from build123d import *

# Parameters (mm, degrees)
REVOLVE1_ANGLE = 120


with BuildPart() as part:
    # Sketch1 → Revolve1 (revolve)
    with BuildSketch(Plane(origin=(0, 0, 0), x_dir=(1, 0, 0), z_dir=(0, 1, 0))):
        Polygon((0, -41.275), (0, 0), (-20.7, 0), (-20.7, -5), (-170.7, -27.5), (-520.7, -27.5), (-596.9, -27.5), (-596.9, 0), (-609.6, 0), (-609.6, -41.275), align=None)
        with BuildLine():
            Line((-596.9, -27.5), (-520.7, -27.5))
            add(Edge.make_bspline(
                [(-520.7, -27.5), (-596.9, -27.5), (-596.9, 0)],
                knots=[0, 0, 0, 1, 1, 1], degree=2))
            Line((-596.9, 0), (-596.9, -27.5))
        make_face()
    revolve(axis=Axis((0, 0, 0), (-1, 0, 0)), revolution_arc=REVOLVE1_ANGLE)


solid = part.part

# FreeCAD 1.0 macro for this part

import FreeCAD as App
import Part
import Sketcher

V = App.Vector

doc = App.newDocument("Part")
body = doc.addObject("PartDesign::Body", "Body")

# Sketch on XZ plane
sketch1 = doc.addObject("Sketcher::SketchObject", "Sketch")
body.addObject(sketch1)
sketch1.AttachmentSupport = (doc.XZ_Plane, [""])
sketch1.MapMode = "FlatFace"
sketch1.addGeometry(Part.LineSegment(V(0, 41.275, 0), V(0, 0, 0)), False)
sketch1.addGeometry(Part.LineSegment(V(0, 0, 0), V(-20.7, 0, 0)), False)
sketch1.addGeometry(Part.LineSegment(V(-20.7, 0, 0), V(-20.7, 5, 0)), False)
sketch1.addGeometry(Part.LineSegment(V(-20.7, 5, 0), V(-170.7, 27.5, 0)), False)
sketch1.addGeometry(Part.LineSegment(V(-170.7, 27.5, 0), V(-520.7, 27.5, 0)), False)
sketch1.addGeometry(Part.BSplineCurve([V(-520.7, 27.5, 0), V(-596.9, 27.5, 0), V(-596.9, 0, 0)], [3, 3], [0, 1], False, 2, [1, 1, 1], False), False)
sketch1.addGeometry(Part.LineSegment(V(-596.9, 0, 0), V(-609.6, 0, 0)), False)
sketch1.addGeometry(Part.LineSegment(V(-609.6, 0, 0), V(-609.6, 41.275, 0)), False)
sketch1.addGeometry(Part.LineSegment(V(-609.6, 41.275, 0), V(0, 41.275, 0)), False)
sketch1.addConstraint(Sketcher.Constraint("Block", 5))
sketch1.addConstraint(Sketcher.Constraint("Coincident", 0, 2, 1, 1))
sketch1.addConstraint(Sketcher.Constraint("Coincident", 1, 2, 2, 1))
sketch1.addConstraint(Sketcher.Constraint("Coincident", 2, 2, 3, 1))
sketch1.addConstraint(Sketcher.Constraint("Coincident", 3, 2, 4, 1))
sketch1.addConstraint(Sketcher.Constraint("Coincident", 4, 2, 5, 1))
sketch1.addConstraint(Sketcher.Constraint("Coincident", 5, 2, 6, 1))
sketch1.addConstraint(Sketcher.Constraint("Coincident", 6, 2, 7, 1))
sketch1.addConstraint(Sketcher.Constraint("Coincident", 7, 2, 8, 1))
sketch1.addConstraint(Sketcher.Constraint("Coincident", 8, 2, 0, 1))
sketch1.addConstraint(Sketcher.Constraint("Vertical", 0))
sketch1.addConstraint(Sketcher.Constraint("Horizontal", 1))
sketch1.addConstraint(Sketcher.Constraint("Vertical", 2))
sketch1.addConstraint(Sketcher.Constraint("Horizontal", 4))
sketch1.addConstraint(Sketcher.Constraint("Horizontal", 6))
sketch1.addConstraint(Sketcher.Constraint("Vertical", 7))
sketch1.addConstraint(Sketcher.Constraint("Horizontal", 8))
sketch1.addConstraint(Sketcher.Constraint("Coincident", 0, 2, -1, 1))
sketch1.addConstraint(Sketcher.Constraint("DistanceX", 4, 2, 4, 1, 350.0))
sketch1.addConstraint(Sketcher.Constraint("DistanceY", 2, 1, 2, 2, 5.0))
sketch1.addConstraint(Sketcher.Constraint("DistanceX", 1, 2, 1, 1, 20.7))
sketch1.addConstraint(Sketcher.Constraint("DistanceX", 6, 2, 6, 1, 12.7))
sketch1.addConstraint(Sketcher.Constraint("DistanceY", 0, 2, 0, 1, 41.275))
revolution = doc.addObject("PartDesign::Revolution", "Revolution")
body.addObject(revolution)
revolution.Profile = sketch1
revolution.ReferenceAxis = (sketch1, ["H_Axis"])
revolution.Angle = 120
revolution.Reversed = True

doc.recompute()
